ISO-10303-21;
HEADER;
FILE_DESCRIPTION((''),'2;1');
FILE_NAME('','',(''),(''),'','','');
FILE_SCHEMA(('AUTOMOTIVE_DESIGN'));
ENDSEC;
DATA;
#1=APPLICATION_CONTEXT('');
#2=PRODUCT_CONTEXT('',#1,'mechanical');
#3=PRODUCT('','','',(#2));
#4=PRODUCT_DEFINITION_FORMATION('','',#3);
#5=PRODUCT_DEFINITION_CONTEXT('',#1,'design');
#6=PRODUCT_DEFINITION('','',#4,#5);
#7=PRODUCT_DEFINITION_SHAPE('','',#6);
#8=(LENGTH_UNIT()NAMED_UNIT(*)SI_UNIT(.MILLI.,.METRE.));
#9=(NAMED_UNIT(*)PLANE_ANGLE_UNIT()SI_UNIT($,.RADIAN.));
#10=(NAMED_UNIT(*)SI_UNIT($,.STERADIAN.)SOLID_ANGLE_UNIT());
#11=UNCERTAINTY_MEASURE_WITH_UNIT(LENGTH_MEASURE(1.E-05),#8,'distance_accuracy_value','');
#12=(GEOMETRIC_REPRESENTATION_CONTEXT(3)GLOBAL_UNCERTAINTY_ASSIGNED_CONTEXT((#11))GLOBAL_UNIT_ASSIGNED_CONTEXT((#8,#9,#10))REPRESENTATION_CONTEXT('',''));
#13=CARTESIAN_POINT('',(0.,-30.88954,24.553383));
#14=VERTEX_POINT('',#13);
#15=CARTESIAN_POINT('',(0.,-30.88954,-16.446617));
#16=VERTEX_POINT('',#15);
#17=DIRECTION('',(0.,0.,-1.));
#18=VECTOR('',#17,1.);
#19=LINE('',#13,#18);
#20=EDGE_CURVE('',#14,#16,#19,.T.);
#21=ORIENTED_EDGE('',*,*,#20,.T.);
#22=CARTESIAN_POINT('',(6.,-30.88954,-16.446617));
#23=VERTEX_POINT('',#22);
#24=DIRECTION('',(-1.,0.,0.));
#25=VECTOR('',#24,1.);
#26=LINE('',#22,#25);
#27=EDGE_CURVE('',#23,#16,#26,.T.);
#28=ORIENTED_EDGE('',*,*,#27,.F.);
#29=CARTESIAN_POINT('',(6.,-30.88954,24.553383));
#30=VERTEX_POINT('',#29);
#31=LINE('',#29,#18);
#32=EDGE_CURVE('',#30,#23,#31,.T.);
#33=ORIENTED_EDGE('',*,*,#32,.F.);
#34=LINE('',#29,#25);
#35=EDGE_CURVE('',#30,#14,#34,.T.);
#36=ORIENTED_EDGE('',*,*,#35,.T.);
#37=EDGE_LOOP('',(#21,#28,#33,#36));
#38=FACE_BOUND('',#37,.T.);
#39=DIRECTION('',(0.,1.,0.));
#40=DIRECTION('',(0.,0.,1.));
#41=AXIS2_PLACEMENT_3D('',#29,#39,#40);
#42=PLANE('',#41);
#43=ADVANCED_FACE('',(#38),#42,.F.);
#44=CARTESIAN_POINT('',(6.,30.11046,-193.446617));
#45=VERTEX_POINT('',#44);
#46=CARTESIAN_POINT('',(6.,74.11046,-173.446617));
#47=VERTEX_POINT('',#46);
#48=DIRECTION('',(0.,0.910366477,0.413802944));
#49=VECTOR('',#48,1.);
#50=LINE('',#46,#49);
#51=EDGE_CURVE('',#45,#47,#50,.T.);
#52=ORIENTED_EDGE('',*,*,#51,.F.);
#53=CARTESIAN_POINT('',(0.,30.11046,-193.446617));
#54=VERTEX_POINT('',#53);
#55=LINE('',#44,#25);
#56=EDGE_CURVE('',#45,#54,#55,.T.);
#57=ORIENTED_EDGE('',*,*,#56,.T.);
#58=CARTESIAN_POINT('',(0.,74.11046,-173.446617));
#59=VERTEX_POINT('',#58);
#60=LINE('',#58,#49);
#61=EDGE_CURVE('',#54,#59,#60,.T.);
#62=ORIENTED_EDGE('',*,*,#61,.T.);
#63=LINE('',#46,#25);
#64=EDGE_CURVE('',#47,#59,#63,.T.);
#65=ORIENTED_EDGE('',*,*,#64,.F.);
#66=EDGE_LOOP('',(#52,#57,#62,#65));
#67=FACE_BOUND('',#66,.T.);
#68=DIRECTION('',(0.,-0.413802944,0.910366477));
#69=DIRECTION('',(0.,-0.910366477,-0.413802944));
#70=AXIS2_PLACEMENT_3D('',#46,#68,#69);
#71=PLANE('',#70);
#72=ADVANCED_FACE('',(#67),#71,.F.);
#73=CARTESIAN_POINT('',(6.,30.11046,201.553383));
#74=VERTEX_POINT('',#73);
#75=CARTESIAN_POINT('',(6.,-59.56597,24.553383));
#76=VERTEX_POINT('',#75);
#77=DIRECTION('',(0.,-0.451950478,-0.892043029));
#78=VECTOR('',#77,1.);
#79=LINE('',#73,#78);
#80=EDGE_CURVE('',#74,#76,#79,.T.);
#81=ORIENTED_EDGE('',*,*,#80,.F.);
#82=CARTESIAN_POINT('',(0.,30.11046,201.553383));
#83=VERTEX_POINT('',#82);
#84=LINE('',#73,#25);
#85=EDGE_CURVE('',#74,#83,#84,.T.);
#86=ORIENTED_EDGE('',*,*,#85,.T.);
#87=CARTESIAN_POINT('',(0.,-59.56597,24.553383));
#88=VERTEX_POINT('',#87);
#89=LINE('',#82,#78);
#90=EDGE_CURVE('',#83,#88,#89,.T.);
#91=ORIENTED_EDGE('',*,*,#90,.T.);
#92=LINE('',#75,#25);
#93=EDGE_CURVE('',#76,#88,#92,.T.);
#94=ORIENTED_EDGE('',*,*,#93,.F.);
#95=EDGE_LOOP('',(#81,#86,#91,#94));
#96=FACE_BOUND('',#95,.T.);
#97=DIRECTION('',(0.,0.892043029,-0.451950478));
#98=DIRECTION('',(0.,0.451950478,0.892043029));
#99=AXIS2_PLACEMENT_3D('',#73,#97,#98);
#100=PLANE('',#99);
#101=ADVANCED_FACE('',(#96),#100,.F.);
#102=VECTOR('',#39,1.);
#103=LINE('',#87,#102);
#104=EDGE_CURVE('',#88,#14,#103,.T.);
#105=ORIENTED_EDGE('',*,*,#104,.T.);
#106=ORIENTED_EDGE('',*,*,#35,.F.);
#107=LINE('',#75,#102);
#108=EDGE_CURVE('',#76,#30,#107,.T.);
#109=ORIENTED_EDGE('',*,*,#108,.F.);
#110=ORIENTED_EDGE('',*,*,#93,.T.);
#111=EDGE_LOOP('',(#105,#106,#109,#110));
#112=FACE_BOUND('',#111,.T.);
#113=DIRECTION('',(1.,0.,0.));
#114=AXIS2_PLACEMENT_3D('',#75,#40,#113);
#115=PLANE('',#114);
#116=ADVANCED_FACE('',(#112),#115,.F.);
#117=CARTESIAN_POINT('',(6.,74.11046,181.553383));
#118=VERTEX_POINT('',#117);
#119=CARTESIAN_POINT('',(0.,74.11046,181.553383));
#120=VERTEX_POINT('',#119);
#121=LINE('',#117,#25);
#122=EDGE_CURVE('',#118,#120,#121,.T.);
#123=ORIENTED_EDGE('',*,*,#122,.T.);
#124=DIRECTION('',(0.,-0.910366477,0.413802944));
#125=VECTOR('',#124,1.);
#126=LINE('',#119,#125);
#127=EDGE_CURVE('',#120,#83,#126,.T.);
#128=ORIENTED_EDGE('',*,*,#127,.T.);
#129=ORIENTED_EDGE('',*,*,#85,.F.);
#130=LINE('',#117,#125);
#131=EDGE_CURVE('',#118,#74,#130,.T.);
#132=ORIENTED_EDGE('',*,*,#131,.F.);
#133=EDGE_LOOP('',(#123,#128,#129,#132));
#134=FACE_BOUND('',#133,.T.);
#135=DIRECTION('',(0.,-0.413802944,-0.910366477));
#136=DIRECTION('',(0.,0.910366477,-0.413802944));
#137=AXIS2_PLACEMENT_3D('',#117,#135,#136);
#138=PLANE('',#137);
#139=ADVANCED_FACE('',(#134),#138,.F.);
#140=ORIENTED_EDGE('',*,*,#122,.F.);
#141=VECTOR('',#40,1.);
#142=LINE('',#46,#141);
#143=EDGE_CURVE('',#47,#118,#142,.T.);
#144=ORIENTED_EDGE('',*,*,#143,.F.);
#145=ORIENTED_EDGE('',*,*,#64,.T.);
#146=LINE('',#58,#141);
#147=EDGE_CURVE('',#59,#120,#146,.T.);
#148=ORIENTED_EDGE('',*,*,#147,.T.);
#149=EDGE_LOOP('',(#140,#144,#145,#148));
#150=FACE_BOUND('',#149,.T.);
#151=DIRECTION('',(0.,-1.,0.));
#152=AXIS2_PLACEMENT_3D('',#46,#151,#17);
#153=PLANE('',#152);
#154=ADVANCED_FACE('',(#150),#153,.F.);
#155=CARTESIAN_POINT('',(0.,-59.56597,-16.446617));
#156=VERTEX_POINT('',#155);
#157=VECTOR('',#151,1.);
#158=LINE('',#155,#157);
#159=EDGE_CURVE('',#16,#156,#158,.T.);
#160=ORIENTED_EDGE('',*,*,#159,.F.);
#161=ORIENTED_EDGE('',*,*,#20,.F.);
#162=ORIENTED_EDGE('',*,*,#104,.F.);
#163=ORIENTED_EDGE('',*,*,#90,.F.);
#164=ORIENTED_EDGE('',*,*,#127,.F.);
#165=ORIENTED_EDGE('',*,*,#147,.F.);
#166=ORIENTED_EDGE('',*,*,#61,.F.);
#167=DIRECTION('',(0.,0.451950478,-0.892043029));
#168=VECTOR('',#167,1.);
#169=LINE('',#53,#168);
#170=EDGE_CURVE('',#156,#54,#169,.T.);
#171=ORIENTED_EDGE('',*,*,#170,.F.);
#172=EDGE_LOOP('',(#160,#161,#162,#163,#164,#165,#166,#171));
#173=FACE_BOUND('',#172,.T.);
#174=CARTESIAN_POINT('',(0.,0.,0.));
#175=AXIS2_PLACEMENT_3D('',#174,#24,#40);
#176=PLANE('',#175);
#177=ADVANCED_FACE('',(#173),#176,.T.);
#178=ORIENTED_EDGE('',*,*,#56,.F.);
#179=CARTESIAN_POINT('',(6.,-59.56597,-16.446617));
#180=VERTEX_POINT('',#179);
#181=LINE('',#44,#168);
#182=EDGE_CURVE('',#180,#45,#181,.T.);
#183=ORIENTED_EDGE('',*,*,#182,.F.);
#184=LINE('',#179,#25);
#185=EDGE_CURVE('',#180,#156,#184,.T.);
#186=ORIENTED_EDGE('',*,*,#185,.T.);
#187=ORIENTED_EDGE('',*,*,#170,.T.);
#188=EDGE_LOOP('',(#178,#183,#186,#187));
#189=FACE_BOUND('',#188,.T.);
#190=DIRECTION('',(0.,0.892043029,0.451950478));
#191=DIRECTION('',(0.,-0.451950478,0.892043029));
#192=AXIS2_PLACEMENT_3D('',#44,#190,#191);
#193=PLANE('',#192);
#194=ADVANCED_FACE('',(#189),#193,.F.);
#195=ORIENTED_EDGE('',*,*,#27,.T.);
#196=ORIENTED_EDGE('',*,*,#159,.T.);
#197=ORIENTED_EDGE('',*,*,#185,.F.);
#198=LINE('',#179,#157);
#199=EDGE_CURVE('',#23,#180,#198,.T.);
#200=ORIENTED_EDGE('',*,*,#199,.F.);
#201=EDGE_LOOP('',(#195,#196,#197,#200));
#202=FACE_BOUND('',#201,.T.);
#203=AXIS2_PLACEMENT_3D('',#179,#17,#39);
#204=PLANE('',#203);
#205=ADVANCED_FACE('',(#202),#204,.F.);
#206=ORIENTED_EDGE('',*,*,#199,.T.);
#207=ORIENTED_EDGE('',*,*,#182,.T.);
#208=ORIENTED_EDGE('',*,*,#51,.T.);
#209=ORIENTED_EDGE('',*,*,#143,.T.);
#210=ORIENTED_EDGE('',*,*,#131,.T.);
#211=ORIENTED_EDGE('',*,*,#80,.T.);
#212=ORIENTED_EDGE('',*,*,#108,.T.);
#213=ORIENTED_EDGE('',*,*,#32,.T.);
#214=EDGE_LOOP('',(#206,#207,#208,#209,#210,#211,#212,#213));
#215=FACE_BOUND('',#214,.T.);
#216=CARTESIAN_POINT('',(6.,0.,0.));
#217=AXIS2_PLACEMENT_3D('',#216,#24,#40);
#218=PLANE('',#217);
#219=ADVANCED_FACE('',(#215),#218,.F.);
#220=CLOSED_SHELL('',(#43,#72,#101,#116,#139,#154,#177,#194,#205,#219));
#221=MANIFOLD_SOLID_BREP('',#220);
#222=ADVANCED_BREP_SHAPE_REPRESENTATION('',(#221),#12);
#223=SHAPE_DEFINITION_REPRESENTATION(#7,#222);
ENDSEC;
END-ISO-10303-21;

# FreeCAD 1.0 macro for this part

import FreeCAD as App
import Part
import Sketcher

doc = App.newDocument("Part")
body = doc.addObject("PartDesign::Body", "Body")

# Sketch on YZ plane
sketch1 = body.newObject("Sketcher::SketchObject", "Sketch")
sketch1.AttachmentSupport = (doc.getObject("YZ_Plane"), [""])
sketch1.MapMode = "FlatFace"
sketch1.addGeometry(Part.LineSegment(App.Vector(74, -173, 0), App.Vector(74, 182, 0)), False)
sketch1.addGeometry(Part.LineSegment(App.Vector(74, 182, 0), App.Vector(30, 202, 0)), False)
sketch1.addGeometry(Part.LineSegment(App.Vector(30, 202, 0), App.Vector(-60, 25, 0)), False)
sketch1.addGeometry(Part.LineSegment(App.Vector(-60, 25, 0), App.Vector(-31, 25, 0)), False)
sketch1.addGeometry(Part.LineSegment(App.Vector(-31, 25, 0), App.Vector(-31, -16, 0)), False)
sketch1.addGeometry(Part.LineSegment(App.Vector(-31, -16, 0), App.Vector(-60, -16, 0)), False)
sketch1.addGeometry(Part.LineSegment(App.Vector(-60, -16, 0), App.Vector(30, -193, 0)), False)
sketch1.addGeometry(Part.LineSegment(App.Vector(30, -193, 0), App.Vector(74, -173, 0)), False)
sketch1.addConstraint(Sketcher.Constraint("Coincident", 0, 2, 1, 1))
sketch1.addConstraint(Sketcher.Constraint("Coincident", 1, 2, 2, 1))
sketch1.addConstraint(Sketcher.Constraint("Coincident", 2, 2, 3, 1))
sketch1.addConstraint(Sketcher.Constraint("Coincident", 3, 2, 4, 1))
sketch1.addConstraint(Sketcher.Constraint("Coincident", 4, 2, 5, 1))
sketch1.addConstraint(Sketcher.Constraint("Coincident", 5, 2, 6, 1))
sketch1.addConstraint(Sketcher.Constraint("Coincident", 6, 2, 7, 1))
sketch1.addConstraint(Sketcher.Constraint("Coincident", 7, 2, 0, 1))
sketch1.addConstraint(Sketcher.Constraint("Vertical", 0))
sketch1.addConstraint(Sketcher.Constraint("Horizontal", 3))
sketch1.addConstraint(Sketcher.Constraint("Vertical", 4))
sketch1.addConstraint(Sketcher.Constraint("Horizontal", 5))
sketch1.addConstraint(Sketcher.Constraint("Vertical", 2, 2, 5, 2))
sketch1.addConstraint(Sketcher.Constraint("Vertical", 1, 2, 6, 2))
sketch1.addConstraint(Sketcher.Constraint("Equal", 2, 6))
sketch1.addConstraint(Sketcher.Constraint("Equal", 1, 7))
sketch1.addConstraint(Sketcher.Constraint("DistanceY", 0, 1, 0, 2, 355.0))
sketch1.addConstraint(Sketcher.Constraint("DistanceY", 4, 2, 4, 1, 41.0))
sketch1.addConstraint(Sketcher.Constraint("DistanceX", 1, 2, 0, 2, 44.0))
sketch1.addConstraint(Sketcher.Constraint("DistanceY", 0, 2, 1, 2, 20.0))
sketch1.addConstraint(Sketcher.Constraint("DistanceX", 3, 2, 1, 2, 61.0))
sketch1.addConstraint(Sketcher.Constraint("DistanceX", 3, 1, 3, 2, 28.67643))
sketch1.addConstraint(Sketcher.Constraint("DistanceX", -1, 1, 0, 2, 74.11046))
sketch1.addConstraint(Sketcher.Constraint("DistanceY", -1, 1, 0, 2, 181.553383))
pad1 = body.newObject("PartDesign::Pad", "Pad")
pad1.Profile = sketch1
pad1.Length = 6

doc.recompute()
